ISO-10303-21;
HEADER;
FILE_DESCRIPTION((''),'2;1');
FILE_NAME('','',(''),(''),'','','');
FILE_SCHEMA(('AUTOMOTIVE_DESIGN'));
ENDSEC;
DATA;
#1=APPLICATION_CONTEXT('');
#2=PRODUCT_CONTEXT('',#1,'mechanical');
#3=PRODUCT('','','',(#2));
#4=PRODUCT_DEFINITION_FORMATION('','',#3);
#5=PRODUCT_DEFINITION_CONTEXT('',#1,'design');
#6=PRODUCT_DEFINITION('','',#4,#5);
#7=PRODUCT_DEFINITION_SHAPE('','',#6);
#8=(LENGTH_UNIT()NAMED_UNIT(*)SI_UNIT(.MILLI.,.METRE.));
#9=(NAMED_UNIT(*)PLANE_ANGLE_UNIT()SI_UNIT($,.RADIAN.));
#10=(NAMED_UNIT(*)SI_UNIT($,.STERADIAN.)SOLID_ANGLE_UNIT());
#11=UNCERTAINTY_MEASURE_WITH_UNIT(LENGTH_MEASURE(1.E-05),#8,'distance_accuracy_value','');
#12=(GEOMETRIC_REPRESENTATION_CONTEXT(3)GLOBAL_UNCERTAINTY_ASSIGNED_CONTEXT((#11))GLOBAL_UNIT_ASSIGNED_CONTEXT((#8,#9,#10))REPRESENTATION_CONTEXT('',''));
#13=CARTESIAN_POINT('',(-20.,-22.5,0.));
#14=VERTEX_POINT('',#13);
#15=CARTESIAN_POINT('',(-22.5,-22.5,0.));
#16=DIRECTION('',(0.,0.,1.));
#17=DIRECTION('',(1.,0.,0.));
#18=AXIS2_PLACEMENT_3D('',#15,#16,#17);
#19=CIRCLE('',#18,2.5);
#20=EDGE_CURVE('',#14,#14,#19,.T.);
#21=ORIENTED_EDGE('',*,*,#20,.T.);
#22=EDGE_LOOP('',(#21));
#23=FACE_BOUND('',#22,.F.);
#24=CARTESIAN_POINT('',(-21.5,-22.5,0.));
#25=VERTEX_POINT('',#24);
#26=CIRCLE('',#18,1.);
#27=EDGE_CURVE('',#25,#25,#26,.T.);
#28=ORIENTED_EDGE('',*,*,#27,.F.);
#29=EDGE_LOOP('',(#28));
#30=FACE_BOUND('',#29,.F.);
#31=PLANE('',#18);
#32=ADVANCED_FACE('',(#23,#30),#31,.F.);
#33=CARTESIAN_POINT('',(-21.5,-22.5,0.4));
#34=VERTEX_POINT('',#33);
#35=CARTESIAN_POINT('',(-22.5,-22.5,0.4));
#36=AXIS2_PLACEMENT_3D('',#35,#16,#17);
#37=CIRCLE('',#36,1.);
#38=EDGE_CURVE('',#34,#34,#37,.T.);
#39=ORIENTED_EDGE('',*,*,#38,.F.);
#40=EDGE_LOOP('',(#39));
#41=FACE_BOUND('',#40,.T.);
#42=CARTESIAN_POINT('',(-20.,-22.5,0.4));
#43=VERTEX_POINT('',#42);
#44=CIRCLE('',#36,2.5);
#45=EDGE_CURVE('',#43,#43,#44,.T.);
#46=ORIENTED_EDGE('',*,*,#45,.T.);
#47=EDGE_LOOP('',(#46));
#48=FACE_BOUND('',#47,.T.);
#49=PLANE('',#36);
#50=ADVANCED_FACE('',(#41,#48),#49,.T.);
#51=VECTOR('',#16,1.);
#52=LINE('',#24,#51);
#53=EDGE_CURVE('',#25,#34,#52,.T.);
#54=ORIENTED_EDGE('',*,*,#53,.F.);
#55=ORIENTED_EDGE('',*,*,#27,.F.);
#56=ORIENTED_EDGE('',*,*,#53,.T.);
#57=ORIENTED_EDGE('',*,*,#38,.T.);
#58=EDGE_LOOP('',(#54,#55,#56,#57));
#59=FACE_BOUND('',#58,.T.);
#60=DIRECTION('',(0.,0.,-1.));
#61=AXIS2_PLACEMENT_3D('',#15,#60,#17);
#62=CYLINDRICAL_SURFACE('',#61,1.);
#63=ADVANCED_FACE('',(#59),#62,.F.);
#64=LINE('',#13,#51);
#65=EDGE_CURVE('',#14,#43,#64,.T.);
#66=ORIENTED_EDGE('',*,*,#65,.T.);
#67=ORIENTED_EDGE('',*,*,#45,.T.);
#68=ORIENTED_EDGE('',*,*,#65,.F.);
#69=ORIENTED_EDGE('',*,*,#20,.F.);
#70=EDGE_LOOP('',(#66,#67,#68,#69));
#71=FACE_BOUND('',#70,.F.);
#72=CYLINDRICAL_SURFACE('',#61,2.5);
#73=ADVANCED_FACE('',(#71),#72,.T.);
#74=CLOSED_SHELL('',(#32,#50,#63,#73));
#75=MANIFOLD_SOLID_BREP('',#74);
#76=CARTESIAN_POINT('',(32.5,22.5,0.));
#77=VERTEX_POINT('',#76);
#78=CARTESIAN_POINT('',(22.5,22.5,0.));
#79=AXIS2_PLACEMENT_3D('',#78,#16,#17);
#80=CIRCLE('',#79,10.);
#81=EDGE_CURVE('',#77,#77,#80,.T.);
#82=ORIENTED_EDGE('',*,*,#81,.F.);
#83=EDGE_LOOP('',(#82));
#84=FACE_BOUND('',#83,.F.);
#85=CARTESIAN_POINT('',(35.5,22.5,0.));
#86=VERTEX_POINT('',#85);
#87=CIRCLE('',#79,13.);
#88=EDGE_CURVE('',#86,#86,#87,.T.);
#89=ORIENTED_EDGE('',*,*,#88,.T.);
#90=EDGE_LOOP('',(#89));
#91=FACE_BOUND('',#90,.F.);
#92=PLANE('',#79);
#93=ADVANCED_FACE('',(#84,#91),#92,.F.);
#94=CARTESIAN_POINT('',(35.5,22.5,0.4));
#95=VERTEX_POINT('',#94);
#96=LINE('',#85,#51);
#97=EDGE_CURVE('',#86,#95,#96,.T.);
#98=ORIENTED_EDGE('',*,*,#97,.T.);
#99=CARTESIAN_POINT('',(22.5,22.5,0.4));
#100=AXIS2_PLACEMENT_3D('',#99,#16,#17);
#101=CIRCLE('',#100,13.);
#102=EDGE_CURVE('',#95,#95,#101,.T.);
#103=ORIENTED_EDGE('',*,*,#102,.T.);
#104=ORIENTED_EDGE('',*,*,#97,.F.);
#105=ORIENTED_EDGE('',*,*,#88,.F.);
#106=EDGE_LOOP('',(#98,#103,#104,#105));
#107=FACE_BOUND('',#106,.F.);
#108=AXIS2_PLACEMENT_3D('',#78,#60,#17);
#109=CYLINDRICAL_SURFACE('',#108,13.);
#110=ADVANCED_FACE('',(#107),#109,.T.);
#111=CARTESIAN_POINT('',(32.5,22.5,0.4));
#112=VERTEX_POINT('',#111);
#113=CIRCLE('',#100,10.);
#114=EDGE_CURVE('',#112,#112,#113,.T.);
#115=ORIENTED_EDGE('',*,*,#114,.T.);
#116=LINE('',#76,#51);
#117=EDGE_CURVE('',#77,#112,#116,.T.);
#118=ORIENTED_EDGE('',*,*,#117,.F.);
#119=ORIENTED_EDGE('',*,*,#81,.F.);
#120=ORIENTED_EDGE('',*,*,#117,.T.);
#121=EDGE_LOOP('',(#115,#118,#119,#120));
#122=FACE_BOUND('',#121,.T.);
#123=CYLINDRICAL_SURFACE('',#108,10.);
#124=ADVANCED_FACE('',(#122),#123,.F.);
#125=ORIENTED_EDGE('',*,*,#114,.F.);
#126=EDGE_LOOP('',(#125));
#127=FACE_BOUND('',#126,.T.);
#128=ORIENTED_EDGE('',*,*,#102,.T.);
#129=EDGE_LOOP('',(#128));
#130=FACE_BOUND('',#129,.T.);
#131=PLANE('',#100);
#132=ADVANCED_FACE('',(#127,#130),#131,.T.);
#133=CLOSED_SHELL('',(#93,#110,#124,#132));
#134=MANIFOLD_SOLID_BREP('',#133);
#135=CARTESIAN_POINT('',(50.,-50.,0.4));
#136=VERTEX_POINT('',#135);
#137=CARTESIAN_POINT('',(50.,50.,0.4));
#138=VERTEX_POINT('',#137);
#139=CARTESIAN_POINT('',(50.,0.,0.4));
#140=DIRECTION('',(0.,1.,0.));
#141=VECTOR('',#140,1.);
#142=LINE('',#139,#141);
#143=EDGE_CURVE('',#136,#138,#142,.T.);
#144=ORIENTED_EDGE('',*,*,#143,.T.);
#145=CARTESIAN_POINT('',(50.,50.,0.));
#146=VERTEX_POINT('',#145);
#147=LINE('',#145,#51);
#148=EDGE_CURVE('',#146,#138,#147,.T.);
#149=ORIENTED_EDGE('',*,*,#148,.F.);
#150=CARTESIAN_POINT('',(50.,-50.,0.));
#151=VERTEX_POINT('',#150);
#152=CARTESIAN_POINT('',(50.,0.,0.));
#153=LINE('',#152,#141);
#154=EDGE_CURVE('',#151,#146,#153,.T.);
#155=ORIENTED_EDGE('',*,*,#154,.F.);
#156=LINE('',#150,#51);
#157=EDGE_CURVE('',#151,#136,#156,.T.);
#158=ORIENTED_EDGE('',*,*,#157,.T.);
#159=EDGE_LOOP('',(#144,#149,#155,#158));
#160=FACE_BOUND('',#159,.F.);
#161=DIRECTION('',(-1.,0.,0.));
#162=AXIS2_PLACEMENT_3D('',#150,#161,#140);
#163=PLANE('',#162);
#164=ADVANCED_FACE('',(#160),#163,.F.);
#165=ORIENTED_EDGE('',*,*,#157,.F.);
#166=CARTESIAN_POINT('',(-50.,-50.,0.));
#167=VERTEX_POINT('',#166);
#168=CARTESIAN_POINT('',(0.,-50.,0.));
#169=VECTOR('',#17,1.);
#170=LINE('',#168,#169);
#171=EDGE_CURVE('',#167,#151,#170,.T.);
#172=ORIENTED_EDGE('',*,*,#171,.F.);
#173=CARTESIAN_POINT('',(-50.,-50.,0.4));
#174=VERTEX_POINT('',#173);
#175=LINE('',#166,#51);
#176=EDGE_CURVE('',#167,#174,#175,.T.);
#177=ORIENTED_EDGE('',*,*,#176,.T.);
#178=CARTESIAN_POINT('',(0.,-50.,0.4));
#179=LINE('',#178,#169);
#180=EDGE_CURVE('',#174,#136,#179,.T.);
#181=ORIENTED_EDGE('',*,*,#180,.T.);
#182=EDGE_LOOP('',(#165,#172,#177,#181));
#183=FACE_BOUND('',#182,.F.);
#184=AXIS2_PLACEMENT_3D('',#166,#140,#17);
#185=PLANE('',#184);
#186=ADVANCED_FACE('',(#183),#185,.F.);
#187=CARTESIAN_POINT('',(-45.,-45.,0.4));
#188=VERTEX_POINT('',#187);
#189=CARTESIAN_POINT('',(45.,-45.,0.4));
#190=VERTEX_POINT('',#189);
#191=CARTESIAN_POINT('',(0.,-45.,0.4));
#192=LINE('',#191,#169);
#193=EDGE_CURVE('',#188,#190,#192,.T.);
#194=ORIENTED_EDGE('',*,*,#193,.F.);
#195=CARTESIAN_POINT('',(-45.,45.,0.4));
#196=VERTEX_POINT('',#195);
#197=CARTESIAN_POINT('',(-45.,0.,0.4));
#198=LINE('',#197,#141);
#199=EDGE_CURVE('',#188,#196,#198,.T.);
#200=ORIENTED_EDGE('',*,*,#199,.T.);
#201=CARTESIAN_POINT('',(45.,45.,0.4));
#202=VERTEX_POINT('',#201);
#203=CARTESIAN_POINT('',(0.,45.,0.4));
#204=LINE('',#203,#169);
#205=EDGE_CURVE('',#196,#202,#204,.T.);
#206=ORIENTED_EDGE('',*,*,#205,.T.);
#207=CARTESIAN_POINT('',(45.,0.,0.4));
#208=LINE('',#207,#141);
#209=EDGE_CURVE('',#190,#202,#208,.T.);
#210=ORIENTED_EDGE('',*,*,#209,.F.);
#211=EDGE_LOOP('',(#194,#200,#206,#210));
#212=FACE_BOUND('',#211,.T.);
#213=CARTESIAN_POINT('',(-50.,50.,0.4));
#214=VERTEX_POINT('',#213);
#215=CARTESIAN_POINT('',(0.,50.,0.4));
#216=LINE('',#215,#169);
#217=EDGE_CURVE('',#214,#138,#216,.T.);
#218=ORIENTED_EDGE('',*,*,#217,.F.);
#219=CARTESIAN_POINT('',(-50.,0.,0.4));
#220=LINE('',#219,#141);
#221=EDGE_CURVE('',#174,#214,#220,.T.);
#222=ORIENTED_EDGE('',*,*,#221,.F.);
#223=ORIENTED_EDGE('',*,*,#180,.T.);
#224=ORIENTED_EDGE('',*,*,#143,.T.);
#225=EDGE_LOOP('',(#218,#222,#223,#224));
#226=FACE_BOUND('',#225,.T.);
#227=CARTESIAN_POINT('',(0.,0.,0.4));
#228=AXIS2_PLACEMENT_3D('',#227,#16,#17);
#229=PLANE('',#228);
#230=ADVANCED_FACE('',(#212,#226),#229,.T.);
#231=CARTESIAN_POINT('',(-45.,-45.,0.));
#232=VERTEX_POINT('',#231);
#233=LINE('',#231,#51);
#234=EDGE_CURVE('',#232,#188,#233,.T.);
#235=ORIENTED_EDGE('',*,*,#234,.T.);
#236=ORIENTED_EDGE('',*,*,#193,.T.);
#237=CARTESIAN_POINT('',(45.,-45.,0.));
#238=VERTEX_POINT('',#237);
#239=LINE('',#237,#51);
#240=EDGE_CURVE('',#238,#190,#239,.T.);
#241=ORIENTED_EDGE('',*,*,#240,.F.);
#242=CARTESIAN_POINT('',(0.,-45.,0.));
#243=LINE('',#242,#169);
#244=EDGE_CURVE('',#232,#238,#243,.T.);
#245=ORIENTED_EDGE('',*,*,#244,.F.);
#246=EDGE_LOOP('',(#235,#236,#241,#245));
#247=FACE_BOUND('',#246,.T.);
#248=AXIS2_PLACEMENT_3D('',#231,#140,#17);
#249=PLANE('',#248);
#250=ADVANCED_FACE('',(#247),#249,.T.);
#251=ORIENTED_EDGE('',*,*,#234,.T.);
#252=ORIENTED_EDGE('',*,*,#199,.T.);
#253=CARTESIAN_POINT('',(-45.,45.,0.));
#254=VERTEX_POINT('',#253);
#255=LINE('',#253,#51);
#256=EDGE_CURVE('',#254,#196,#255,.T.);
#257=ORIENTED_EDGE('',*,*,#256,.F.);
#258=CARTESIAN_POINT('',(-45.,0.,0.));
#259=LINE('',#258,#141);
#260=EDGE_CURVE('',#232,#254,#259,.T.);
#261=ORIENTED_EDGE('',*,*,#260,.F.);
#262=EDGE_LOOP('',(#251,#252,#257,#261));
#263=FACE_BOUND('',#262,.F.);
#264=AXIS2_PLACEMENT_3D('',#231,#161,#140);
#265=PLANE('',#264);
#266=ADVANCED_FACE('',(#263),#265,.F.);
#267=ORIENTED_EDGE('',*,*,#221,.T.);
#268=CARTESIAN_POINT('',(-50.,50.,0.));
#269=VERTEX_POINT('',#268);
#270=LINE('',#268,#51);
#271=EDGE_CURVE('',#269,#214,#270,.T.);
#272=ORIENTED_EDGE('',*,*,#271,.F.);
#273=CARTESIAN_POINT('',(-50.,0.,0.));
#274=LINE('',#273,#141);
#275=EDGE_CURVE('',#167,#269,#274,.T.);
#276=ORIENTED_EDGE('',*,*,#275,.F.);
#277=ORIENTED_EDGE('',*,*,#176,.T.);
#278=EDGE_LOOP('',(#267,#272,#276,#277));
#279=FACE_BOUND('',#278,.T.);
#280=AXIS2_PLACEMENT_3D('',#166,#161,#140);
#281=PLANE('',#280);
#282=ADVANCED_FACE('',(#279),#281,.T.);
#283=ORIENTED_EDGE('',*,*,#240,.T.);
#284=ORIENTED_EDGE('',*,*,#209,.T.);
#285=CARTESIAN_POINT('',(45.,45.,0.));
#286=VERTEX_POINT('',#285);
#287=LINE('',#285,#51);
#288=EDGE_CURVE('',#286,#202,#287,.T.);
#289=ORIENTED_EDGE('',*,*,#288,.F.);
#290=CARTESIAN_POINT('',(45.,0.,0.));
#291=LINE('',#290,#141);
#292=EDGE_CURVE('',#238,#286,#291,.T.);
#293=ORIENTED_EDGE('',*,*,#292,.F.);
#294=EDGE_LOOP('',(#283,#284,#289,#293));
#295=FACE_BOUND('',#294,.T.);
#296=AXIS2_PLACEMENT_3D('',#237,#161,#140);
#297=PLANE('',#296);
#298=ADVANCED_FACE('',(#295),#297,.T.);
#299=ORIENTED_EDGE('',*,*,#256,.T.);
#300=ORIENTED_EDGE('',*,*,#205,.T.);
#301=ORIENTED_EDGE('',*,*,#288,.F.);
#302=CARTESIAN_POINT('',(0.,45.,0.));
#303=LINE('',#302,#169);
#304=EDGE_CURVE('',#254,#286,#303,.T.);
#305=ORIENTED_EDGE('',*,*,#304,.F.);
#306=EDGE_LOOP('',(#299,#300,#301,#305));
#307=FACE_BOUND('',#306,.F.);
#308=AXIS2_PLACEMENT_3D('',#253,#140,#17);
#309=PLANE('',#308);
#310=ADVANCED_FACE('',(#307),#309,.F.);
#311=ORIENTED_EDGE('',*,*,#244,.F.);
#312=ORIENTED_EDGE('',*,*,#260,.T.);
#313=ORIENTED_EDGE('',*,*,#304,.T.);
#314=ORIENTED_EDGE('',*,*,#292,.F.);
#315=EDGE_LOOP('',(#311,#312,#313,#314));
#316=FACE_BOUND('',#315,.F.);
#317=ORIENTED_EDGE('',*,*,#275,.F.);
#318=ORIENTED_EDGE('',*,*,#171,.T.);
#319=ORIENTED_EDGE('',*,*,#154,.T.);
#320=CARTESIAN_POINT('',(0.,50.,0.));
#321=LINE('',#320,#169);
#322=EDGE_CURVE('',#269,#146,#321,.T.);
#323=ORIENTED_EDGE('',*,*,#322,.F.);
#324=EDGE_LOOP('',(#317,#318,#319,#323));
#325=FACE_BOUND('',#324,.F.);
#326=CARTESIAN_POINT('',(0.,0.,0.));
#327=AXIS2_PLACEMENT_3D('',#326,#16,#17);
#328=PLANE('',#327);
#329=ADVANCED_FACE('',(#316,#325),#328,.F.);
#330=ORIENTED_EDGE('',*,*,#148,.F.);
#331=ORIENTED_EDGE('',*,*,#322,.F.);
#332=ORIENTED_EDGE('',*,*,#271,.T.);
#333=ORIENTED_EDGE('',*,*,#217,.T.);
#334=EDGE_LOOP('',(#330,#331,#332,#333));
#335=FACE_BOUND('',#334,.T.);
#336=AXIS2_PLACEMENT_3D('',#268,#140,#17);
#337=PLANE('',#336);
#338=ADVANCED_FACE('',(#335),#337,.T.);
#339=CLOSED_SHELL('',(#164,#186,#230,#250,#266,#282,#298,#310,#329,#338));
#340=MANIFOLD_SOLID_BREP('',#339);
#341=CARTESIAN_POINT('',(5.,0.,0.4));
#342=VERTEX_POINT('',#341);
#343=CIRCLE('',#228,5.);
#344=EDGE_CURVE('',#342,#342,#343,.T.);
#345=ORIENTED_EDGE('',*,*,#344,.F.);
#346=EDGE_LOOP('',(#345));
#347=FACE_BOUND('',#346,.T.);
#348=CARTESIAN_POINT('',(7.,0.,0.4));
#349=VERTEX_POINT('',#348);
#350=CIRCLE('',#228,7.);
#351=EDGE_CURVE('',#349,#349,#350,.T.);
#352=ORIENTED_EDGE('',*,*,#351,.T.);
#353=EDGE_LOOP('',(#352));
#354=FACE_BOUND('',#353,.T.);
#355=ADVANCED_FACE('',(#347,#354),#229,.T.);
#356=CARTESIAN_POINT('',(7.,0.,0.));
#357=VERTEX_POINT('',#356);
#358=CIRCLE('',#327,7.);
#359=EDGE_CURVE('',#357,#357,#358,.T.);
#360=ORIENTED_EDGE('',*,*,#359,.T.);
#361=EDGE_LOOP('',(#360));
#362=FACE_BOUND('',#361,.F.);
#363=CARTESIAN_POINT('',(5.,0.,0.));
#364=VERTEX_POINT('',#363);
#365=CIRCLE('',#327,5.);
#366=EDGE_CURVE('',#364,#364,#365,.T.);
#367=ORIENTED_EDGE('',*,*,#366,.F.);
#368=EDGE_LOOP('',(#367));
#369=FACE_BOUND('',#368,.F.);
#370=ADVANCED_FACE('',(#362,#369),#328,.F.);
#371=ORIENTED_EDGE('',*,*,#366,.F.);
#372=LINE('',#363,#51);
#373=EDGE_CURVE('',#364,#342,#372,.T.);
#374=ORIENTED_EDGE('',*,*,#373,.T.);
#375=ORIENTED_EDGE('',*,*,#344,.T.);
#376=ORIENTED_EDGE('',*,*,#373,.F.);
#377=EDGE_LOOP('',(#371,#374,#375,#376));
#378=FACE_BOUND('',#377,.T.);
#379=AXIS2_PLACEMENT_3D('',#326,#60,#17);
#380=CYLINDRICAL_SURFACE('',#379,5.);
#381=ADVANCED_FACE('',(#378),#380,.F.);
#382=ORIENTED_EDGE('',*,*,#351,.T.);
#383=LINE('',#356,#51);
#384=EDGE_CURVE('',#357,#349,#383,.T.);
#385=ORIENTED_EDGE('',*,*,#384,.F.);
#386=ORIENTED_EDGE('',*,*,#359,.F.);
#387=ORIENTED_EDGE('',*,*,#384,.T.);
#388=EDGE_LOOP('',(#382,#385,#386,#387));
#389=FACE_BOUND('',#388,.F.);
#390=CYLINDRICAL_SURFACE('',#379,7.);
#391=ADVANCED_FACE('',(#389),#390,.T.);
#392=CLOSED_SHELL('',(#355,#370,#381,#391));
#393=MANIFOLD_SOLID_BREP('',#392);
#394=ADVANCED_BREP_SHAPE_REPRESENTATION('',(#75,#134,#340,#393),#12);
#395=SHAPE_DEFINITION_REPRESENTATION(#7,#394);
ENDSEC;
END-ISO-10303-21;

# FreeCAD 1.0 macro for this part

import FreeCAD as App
import Part
import Sketcher
Q = App.Units.Quantity


def add_polygon(sketch, points):
    """Adds a closed chain of lines whose ends are joined by coincident constraints."""
    first, n = sketch.GeometryCount, len(points)
    for a, b in zip(points, points[1:] + points[:1]):
        sketch.addGeometry(Part.LineSegment(App.Vector(*a, 0), App.Vector(*b, 0)), False)
    for i in range(n):
        sketch.addConstraint(Sketcher.Constraint("Coincident", first + i, 2, first + (i + 1) % n, 1))

doc = App.newDocument("Part")
params = doc.addObject("Spreadsheet::Sheet", "Params")
for row, (alias, value) in enumerate([
    ("sketch1_diameter", "5 mm"),
    ("sketch1_diameter2", "2 mm"),
    ("sketch1_diameter3", "14 mm"),
    ("sketch1_diameter4", "10 mm"),
    ("sketch1_diameter5", "26 mm"),
    ("pad1_length", "0.4 mm"),
], start=1):
    params.set(f"A{row}", alias)
    params.set(f"B{row}", "=" + value)
    params.setAlias(f"B{row}", alias)

body = doc.addObject("PartDesign::Body", "Body")
body.AllowCompound = True

# Sketch on XY plane
sketch1 = doc.addObject("Sketcher::SketchObject", "Sketch")
body.addObject(sketch1)
sketch1.AttachmentSupport = (doc.XY_Plane, [""])
sketch1.MapMode = "FlatFace"
add_polygon(sketch1, [(-50, 50), (-50, -50), (50, -50), (50, 50)])  # lines 0-3
add_polygon(sketch1, [(45, -45), (-45, -45), (-45, 45), (45, 45)])  # lines 4-7
sketch1.addGeometry(Part.Circle(App.Vector(-22.5, -22.5, 0), App.Vector(0, 0, 1), 2.5), False)  # 8
sketch1.addGeometry(Part.Circle(App.Vector(-22.5, -22.5, 0), App.Vector(0, 0, 1), 1), False)  # 9
sketch1.addGeometry(Part.Circle(App.Vector(0, 0, 0), App.Vector(0, 0, 1), 7), False)  # 10
sketch1.addGeometry(Part.Circle(App.Vector(0, 0, 0), App.Vector(0, 0, 1), 5), False)  # 11
sketch1.addGeometry(Part.Circle(App.Vector(22.5, 22.5, 0), App.Vector(0, 0, 1), 13), False)  # 12
sketch1.addGeometry(Part.Circle(App.Vector(22.5, 22.5, 0), App.Vector(0, 0, 1), 10), False)  # 13
sketch1.addConstraint([
    Sketcher.Constraint("Vertical", 0),
    Sketcher.Constraint("Horizontal", 1),
    Sketcher.Constraint("Vertical", 2),
    Sketcher.Constraint("Horizontal", 3),
    Sketcher.Constraint("Horizontal", 4),
    Sketcher.Constraint("Vertical", 5),
    Sketcher.Constraint("Horizontal", 6),
    Sketcher.Constraint("Vertical", 7),
    Sketcher.Constraint("Coincident", 10, 3, -1, 1),
    Sketcher.Constraint("Coincident", 11, 3, -1, 1),
    Sketcher.Constraint("Coincident", 9, 3, 8, 3),
    Sketcher.Constraint("Coincident", 13, 3, 12, 3),
    Sketcher.Constraint("Symmetric", 8, 3, 12, 3, -1, 1),
    Sketcher.Constraint("Symmetric", 0, 2, 2, 2, -1, 1),
    Sketcher.Constraint("Symmetric", 4, 2, 6, 2, -1, 1),
    Sketcher.Constraint("Equal", 3, 0),
    Sketcher.Constraint("Equal", 6, 5),
    Sketcher.Constraint("Diameter", 8, Q("5 mm")),
    Sketcher.Constraint("Diameter", 9, Q("2 mm")),
    Sketcher.Constraint("Diameter", 10, Q("14 mm")),
    Sketcher.Constraint("Diameter", 11, Q("10 mm")),
    Sketcher.Constraint("Diameter", 12, Q("26 mm")),
    Sketcher.Constraint("Diameter", 13, Q("20 mm")),
    Sketcher.Constraint("DistanceX", 1, 1, 1, 2, Q("100 mm")),
    Sketcher.Constraint("DistanceX", 4, 2, 4, 1, Q("90 mm")),
    Sketcher.Constraint("DistanceX", 8, 3, 12, 3, Q("45 mm")),
    Sketcher.Constraint("DistanceY", 8, 3, 12, 3, Q("45 mm")),
])
sketch1.setExpression("Constraints[25]", "Params.sketch1_diameter")
sketch1.setExpression("Constraints[26]", "Params.sketch1_diameter2")
sketch1.setExpression("Constraints[27]", "Params.sketch1_diameter3")
sketch1.setExpression("Constraints[28]", "Params.sketch1_diameter4")
sketch1.setExpression("Constraints[29]", "Params.sketch1_diameter5")
pad1 = doc.addObject("PartDesign::Pad", "Pad")
body.addObject(pad1)
pad1.Profile = sketch1
pad1.setExpression("Length", "Params.pad1_length")

doc.recompute()
